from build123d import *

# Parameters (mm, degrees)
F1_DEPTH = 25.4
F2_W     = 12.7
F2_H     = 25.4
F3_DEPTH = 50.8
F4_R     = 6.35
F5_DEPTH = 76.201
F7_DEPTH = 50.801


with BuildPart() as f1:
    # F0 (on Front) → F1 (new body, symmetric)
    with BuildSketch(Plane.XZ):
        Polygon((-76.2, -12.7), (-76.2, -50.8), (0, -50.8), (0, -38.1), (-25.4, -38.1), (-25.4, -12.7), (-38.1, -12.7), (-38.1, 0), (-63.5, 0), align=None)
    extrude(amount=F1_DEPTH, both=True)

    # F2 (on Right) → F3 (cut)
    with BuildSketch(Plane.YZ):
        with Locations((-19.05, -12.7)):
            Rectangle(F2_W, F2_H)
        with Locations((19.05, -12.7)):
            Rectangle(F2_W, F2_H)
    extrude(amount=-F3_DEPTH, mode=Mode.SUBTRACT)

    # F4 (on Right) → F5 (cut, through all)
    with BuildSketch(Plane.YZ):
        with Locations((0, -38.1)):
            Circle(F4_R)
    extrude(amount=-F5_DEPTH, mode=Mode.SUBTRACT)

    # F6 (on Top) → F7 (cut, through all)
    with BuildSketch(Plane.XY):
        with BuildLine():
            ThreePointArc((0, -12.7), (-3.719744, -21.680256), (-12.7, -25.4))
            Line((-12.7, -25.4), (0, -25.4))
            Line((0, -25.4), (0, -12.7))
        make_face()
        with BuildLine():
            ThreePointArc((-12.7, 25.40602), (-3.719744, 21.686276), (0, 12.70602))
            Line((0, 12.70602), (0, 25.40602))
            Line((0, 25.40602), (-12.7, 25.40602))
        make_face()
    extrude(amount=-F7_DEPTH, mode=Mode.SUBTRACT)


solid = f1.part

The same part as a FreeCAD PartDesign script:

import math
import FreeCAD as App
import Part
import Sketcher

V = App.Vector
Q = App.Units.Quantity


def add_polygon(sketch, points):
    """Adds a closed chain of lines whose ends are joined by coincident constraints."""
    first, n = sketch.GeometryCount, len(points)
    for a, b in zip(points, points[1:] + points[:1]):
        sketch.addGeometry(Part.LineSegment(App.Vector(*a, 0), App.Vector(*b, 0)), False)
    for i in range(n):
        sketch.addConstraint(Sketcher.Constraint("Coincident", first + i, 2, first + (i + 1) % n, 1))

doc = App.newDocument("Part")
body = doc.addObject("PartDesign::Body", "Body")

sketch1 = body.newObject("Sketcher::SketchObject", "Sketch")
sketch1.AttachmentSupport = (doc.getObject("XZ_Plane"), [""])
sketch1.MapMode = "FlatFace"
add_polygon(sketch1, [(-76, -13), (-76, -51), (0, -51), (0, -38), (-25, -38), (-25, -13), (-38, -13), (-38, 0), (-64, 0)])
sketch1.addConstraint(Sketcher.Constraint("Vertical", 0))
sketch1.addConstraint(Sketcher.Constraint("Horizontal", 1))
sketch1.addConstraint(Sketcher.Constraint("Vertical", 2))
sketch1.addConstraint(Sketcher.Constraint("Horizontal", 3))
sketch1.addConstraint(Sketcher.Constraint("Vertical", 4))
sketch1.addConstraint(Sketcher.Constraint("Horizontal", 5))
sketch1.addConstraint(Sketcher.Constraint("Vertical", 6))
sketch1.addConstraint(Sketcher.Constraint("Horizontal", 7))
sketch1.addConstraint(Sketcher.Constraint("PointOnObject", 1, 2, -2))
sketch1.addConstraint(Sketcher.Constraint("PointOnObject", 6, 2, -1))
sketch1.addConstraint(Sketcher.Constraint("Horizontal", 5, 2, 8, 2))
sketch1.addConstraint(Sketcher.Constraint("Equal", 3, 7))
sketch1.addConstraint(Sketcher.Constraint("Equal", 5, 2))
sketch1.addConstraint(Sketcher.Constraint("Equal", 7, 4))
sketch1.addConstraint(Sketcher.Constraint("Equal", 2, 6))
sketch1.addConstraint(Sketcher.Constraint("DistanceX", 1, 1, 1, 2, Q("3 in")))
sketch1.addConstraint(Sketcher.Constraint("DistanceX", 3, 2, 3, 1, Q("1 in")))
sketch1.addConstraint(Sketcher.Constraint("DistanceX", 5, 2, 5, 1, Q("0.5 in")))
pad1 = body.newObject("PartDesign::Pad", "Pad")
pad1.Profile = sketch1
pad1.Length = Q("2 in")
pad1.Midplane = True

sketch2 = body.newObject("Sketcher::SketchObject", "Sketch001")
sketch2.AttachmentSupport = (doc.getObject("YZ_Plane"), [""])
sketch2.MapMode = "FlatFace"
add_polygon(sketch2, [(-25, 0), (-25, -25), (-13, -25), (-13, 0)])
add_polygon(sketch2, [(13, 0), (13, -25), (25, -25), (25, 0)])
sketch2.addConstraint(Sketcher.Constraint("Vertical", 0))
sketch2.addConstraint(Sketcher.Constraint("Horizontal", 1))
sketch2.addConstraint(Sketcher.Constraint("Vertical", 2))
sketch2.addConstraint(Sketcher.Constraint("Horizontal", 3))
sketch2.addConstraint(Sketcher.Constraint("Vertical", 4))
sketch2.addConstraint(Sketcher.Constraint("Horizontal", 5))
sketch2.addConstraint(Sketcher.Constraint("Vertical", 6))
sketch2.addConstraint(Sketcher.Constraint("Horizontal", 7))
sketch2.addConstraint(Sketcher.Constraint("Symmetric", 3, 2, 6, 2, -1, 1))
sketch2.addConstraint(Sketcher.Constraint("Symmetric", 1, 2, 4, 2, -2))
sketch2.addConstraint(Sketcher.Constraint("PointOnObject", 2, 2, -1))
sketch2.addConstraint(Sketcher.Constraint("DistanceY", 0, 2, 0, 1, Q("1 in")))
sketch2.addConstraint(Sketcher.Constraint("DistanceX", 1, 1, 1, 2, Q("0.5 in")))
sketch2.addConstraint(Sketcher.Constraint("DistanceX", 0, 2, -1, 1, Q("1 in")))
pocket1 = body.newObject("PartDesign::Pocket", "Pocket")
pocket1.Profile = sketch2
pocket1.Length = Q("2 in")

sketch3 = body.newObject("Sketcher::SketchObject", "Sketch002")
sketch3.AttachmentSupport = (doc.getObject("YZ_Plane"), [""])
sketch3.MapMode = "FlatFace"
sketch3.addGeometry(Part.Circle(V(0, -38, 0), V(0, 0, 1), 6), False)
sketch3.addConstraint(Sketcher.Constraint("PointOnObject", 0, 3, -2))
sketch3.addConstraint(Sketcher.Constraint("Diameter", 0, Q("0.5 in")))
sketch3.addConstraint(Sketcher.Constraint("DistanceY", 0, 3, -1, 1, Q("1.5 in")))
pocket2 = body.newObject("PartDesign::Pocket", "Pocket001")
pocket2.Profile = sketch3
pocket2.Type = "ThroughAll"

sketch4 = body.newObject("Sketcher::SketchObject", "Sketch003")
sketch4.AttachmentSupport = (doc.getObject("XY_Plane"), [""])
sketch4.MapMode = "FlatFace"
sketch4.addGeometry(Part.ArcOfCircle(Part.Circle(V(-13, -13, 0), V(0, 0, 1), 13), math.radians(-90), math.radians(0)), False)
sketch4.addGeometry(Part.LineSegment(V(-13, -25, 0), V(0, -25, 0)), False)
sketch4.addGeometry(Part.LineSegment(V(0, -25, 0), V(0, -13, 0)), False)
sketch4.addGeometry(Part.ArcOfCircle(Part.Circle(V(-13, 13, 0), V(0, 0, 1), 13), math.radians(0), math.radians(90)), False)
sketch4.addGeometry(Part.LineSegment(V(0, 13, 0), V(0, 25, 0)), False)
sketch4.addGeometry(Part.LineSegment(V(0, 25, 0), V(-13, 25, 0)), False)
sketch4.addConstraint(Sketcher.Constraint("Tangent", 0, 1, 1, 1))
sketch4.addConstraint(Sketcher.Constraint("Coincident", 1, 2, 2, 1))
sketch4.addConstraint(Sketcher.Constraint("Tangent", 2, 2, 0, 2))
sketch4.addConstraint(Sketcher.Constraint("Tangent", 3, 1, 4, 1))
sketch4.addConstraint(Sketcher.Constraint("Coincident", 4, 2, 5, 1))
sketch4.addConstraint(Sketcher.Constraint("Tangent", 5, 2, 3, 2))
sketch4.addConstraint(Sketcher.Constraint("Horizontal", 1))
sketch4.addConstraint(Sketcher.Constraint("Vertical", 2))
sketch4.addConstraint(Sketcher.Constraint("Vertical", 4))
sketch4.addConstraint(Sketcher.Constraint("Horizontal", 5))
sketch4.addConstraint(Sketcher.Constraint("Equal", 0, 3))
sketch4.addConstraint(Sketcher.Constraint("PointOnObject", 1, 2, -2))
sketch4.addConstraint(Sketcher.Constraint("PointOnObject", 3, 1, -2))
sketch4.addConstraint(Sketcher.Constraint("Radius", 0, Q("0.5 in")))
sketch4.addConstraint(Sketcher.Constraint("DistanceY", 0, 1, -1, 1, Q("1 in")))
sketch4.addConstraint(Sketcher.Constraint("DistanceY", -1, 1, 3, 3, Q("12.70602 mm")))
pocket3 = body.newObject("PartDesign::Pocket", "Pocket002")
pocket3.Profile = sketch4
pocket3.Type = "ThroughAll"

doc.recompute()
